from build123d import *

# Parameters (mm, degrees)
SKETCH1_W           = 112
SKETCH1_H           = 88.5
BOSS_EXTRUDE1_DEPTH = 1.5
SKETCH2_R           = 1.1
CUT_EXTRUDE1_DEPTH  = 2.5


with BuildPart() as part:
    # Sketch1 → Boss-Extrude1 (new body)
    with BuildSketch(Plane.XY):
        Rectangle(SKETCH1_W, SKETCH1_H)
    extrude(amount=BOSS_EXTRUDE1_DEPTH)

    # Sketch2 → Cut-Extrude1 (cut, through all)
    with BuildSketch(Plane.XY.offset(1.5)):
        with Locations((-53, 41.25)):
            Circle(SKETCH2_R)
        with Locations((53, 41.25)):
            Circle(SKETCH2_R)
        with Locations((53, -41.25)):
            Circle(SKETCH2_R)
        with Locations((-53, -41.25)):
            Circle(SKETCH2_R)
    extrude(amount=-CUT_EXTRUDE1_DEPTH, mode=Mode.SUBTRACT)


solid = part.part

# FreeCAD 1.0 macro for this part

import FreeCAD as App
import Part
import Sketcher
Q = App.Units.Quantity

doc = App.newDocument("Part")
body = doc.addObject("PartDesign::Body", "Body")

sketch1 = doc.addObject("Sketcher::SketchObject", "Sketch")
body.addObject(sketch1)
sketch1.AttachmentSupport = (doc.XY_Plane, [""])
sketch1.MapMode = "FlatFace"
sketch1.addGeometry([
    Part.LineSegment(App.Vector(-56, 44, 0), App.Vector(-56, -44, 0)),
    Part.LineSegment(App.Vector(-56, -44, 0), App.Vector(56, -44, 0)),
    Part.LineSegment(App.Vector(56, -44, 0), App.Vector(56, 44, 0)),
    Part.LineSegment(App.Vector(56, 44, 0), App.Vector(-56, 44, 0)),
], False)
sketch1.addConstraint([
    Sketcher.Constraint("Coincident", 0, 2, 1, 1),
    Sketcher.Constraint("Coincident", 1, 2, 2, 1),
    Sketcher.Constraint("Coincident", 2, 2, 3, 1),
    Sketcher.Constraint("Coincident", 3, 2, 0, 1),
    Sketcher.Constraint("Vertical", 0),
    Sketcher.Constraint("Horizontal", 1),
    Sketcher.Constraint("Vertical", 2),
    Sketcher.Constraint("Horizontal", 3),
    Sketcher.Constraint("Symmetric", 0, 2, 2, 2, -1, 1),
    Sketcher.Constraint("DistanceX", 1, 1, 1, 2, Q("112 mm")),
    Sketcher.Constraint("DistanceY", 0, 2, 0, 1, Q("88.5 mm")),
])
pad1 = doc.addObject("PartDesign::Pad", "Pad")
body.addObject(pad1)
pad1.Profile = sketch1
pad1.Length = 1.5

sketch2 = doc.addObject("Sketcher::SketchObject", "Sketch001")
body.addObject(sketch2)
sketch2.AttachmentSupport = (doc.XY_Plane, [""])
sketch2.MapMode = "FlatFace"
sketch2.AttachmentOffset = App.Placement(App.Vector(0, 0, 1.5), App.Rotation())
sketch2.addGeometry([
    Part.Circle(App.Vector(-53, 41.2, 0), App.Vector(0, 0, 1), 1.1),
    Part.Circle(App.Vector(53, 41.2, 0), App.Vector(0, 0, 1), 1.1),
    Part.Circle(App.Vector(53, -41.2, 0), App.Vector(0, 0, 1), 1.1),
    Part.Circle(App.Vector(-53, -41.2, 0), App.Vector(0, 0, 1), 1.1),
], False)
sketch2.addConstraint([
    Sketcher.Constraint("Equal", 0, 1),
    Sketcher.Constraint("Equal", 1, 2),
    Sketcher.Constraint("Equal", 2, 3),
    Sketcher.Constraint("Symmetric", 0, 3, 2, 3, -1, 1),
    Sketcher.Constraint("Symmetric", 1, 3, 3, 3, -1, 1),
    Sketcher.Constraint("Symmetric", 0, 3, 1, 3, -2),
    Sketcher.Constraint("Diameter", 0, Q("2.2 mm")),
    Sketcher.Constraint("DistanceX", 0, 3, -1, 1, Q("53 mm")),
    Sketcher.Constraint("DistanceY", 2, 3, 1, 3, Q("82.5 mm")),
])
pocket1 = doc.addObject("PartDesign::Pocket", "Pocket")
body.addObject(pocket1)
pocket1.Profile = sketch2
pocket1.Type = "ThroughAll"

doc.recompute()
